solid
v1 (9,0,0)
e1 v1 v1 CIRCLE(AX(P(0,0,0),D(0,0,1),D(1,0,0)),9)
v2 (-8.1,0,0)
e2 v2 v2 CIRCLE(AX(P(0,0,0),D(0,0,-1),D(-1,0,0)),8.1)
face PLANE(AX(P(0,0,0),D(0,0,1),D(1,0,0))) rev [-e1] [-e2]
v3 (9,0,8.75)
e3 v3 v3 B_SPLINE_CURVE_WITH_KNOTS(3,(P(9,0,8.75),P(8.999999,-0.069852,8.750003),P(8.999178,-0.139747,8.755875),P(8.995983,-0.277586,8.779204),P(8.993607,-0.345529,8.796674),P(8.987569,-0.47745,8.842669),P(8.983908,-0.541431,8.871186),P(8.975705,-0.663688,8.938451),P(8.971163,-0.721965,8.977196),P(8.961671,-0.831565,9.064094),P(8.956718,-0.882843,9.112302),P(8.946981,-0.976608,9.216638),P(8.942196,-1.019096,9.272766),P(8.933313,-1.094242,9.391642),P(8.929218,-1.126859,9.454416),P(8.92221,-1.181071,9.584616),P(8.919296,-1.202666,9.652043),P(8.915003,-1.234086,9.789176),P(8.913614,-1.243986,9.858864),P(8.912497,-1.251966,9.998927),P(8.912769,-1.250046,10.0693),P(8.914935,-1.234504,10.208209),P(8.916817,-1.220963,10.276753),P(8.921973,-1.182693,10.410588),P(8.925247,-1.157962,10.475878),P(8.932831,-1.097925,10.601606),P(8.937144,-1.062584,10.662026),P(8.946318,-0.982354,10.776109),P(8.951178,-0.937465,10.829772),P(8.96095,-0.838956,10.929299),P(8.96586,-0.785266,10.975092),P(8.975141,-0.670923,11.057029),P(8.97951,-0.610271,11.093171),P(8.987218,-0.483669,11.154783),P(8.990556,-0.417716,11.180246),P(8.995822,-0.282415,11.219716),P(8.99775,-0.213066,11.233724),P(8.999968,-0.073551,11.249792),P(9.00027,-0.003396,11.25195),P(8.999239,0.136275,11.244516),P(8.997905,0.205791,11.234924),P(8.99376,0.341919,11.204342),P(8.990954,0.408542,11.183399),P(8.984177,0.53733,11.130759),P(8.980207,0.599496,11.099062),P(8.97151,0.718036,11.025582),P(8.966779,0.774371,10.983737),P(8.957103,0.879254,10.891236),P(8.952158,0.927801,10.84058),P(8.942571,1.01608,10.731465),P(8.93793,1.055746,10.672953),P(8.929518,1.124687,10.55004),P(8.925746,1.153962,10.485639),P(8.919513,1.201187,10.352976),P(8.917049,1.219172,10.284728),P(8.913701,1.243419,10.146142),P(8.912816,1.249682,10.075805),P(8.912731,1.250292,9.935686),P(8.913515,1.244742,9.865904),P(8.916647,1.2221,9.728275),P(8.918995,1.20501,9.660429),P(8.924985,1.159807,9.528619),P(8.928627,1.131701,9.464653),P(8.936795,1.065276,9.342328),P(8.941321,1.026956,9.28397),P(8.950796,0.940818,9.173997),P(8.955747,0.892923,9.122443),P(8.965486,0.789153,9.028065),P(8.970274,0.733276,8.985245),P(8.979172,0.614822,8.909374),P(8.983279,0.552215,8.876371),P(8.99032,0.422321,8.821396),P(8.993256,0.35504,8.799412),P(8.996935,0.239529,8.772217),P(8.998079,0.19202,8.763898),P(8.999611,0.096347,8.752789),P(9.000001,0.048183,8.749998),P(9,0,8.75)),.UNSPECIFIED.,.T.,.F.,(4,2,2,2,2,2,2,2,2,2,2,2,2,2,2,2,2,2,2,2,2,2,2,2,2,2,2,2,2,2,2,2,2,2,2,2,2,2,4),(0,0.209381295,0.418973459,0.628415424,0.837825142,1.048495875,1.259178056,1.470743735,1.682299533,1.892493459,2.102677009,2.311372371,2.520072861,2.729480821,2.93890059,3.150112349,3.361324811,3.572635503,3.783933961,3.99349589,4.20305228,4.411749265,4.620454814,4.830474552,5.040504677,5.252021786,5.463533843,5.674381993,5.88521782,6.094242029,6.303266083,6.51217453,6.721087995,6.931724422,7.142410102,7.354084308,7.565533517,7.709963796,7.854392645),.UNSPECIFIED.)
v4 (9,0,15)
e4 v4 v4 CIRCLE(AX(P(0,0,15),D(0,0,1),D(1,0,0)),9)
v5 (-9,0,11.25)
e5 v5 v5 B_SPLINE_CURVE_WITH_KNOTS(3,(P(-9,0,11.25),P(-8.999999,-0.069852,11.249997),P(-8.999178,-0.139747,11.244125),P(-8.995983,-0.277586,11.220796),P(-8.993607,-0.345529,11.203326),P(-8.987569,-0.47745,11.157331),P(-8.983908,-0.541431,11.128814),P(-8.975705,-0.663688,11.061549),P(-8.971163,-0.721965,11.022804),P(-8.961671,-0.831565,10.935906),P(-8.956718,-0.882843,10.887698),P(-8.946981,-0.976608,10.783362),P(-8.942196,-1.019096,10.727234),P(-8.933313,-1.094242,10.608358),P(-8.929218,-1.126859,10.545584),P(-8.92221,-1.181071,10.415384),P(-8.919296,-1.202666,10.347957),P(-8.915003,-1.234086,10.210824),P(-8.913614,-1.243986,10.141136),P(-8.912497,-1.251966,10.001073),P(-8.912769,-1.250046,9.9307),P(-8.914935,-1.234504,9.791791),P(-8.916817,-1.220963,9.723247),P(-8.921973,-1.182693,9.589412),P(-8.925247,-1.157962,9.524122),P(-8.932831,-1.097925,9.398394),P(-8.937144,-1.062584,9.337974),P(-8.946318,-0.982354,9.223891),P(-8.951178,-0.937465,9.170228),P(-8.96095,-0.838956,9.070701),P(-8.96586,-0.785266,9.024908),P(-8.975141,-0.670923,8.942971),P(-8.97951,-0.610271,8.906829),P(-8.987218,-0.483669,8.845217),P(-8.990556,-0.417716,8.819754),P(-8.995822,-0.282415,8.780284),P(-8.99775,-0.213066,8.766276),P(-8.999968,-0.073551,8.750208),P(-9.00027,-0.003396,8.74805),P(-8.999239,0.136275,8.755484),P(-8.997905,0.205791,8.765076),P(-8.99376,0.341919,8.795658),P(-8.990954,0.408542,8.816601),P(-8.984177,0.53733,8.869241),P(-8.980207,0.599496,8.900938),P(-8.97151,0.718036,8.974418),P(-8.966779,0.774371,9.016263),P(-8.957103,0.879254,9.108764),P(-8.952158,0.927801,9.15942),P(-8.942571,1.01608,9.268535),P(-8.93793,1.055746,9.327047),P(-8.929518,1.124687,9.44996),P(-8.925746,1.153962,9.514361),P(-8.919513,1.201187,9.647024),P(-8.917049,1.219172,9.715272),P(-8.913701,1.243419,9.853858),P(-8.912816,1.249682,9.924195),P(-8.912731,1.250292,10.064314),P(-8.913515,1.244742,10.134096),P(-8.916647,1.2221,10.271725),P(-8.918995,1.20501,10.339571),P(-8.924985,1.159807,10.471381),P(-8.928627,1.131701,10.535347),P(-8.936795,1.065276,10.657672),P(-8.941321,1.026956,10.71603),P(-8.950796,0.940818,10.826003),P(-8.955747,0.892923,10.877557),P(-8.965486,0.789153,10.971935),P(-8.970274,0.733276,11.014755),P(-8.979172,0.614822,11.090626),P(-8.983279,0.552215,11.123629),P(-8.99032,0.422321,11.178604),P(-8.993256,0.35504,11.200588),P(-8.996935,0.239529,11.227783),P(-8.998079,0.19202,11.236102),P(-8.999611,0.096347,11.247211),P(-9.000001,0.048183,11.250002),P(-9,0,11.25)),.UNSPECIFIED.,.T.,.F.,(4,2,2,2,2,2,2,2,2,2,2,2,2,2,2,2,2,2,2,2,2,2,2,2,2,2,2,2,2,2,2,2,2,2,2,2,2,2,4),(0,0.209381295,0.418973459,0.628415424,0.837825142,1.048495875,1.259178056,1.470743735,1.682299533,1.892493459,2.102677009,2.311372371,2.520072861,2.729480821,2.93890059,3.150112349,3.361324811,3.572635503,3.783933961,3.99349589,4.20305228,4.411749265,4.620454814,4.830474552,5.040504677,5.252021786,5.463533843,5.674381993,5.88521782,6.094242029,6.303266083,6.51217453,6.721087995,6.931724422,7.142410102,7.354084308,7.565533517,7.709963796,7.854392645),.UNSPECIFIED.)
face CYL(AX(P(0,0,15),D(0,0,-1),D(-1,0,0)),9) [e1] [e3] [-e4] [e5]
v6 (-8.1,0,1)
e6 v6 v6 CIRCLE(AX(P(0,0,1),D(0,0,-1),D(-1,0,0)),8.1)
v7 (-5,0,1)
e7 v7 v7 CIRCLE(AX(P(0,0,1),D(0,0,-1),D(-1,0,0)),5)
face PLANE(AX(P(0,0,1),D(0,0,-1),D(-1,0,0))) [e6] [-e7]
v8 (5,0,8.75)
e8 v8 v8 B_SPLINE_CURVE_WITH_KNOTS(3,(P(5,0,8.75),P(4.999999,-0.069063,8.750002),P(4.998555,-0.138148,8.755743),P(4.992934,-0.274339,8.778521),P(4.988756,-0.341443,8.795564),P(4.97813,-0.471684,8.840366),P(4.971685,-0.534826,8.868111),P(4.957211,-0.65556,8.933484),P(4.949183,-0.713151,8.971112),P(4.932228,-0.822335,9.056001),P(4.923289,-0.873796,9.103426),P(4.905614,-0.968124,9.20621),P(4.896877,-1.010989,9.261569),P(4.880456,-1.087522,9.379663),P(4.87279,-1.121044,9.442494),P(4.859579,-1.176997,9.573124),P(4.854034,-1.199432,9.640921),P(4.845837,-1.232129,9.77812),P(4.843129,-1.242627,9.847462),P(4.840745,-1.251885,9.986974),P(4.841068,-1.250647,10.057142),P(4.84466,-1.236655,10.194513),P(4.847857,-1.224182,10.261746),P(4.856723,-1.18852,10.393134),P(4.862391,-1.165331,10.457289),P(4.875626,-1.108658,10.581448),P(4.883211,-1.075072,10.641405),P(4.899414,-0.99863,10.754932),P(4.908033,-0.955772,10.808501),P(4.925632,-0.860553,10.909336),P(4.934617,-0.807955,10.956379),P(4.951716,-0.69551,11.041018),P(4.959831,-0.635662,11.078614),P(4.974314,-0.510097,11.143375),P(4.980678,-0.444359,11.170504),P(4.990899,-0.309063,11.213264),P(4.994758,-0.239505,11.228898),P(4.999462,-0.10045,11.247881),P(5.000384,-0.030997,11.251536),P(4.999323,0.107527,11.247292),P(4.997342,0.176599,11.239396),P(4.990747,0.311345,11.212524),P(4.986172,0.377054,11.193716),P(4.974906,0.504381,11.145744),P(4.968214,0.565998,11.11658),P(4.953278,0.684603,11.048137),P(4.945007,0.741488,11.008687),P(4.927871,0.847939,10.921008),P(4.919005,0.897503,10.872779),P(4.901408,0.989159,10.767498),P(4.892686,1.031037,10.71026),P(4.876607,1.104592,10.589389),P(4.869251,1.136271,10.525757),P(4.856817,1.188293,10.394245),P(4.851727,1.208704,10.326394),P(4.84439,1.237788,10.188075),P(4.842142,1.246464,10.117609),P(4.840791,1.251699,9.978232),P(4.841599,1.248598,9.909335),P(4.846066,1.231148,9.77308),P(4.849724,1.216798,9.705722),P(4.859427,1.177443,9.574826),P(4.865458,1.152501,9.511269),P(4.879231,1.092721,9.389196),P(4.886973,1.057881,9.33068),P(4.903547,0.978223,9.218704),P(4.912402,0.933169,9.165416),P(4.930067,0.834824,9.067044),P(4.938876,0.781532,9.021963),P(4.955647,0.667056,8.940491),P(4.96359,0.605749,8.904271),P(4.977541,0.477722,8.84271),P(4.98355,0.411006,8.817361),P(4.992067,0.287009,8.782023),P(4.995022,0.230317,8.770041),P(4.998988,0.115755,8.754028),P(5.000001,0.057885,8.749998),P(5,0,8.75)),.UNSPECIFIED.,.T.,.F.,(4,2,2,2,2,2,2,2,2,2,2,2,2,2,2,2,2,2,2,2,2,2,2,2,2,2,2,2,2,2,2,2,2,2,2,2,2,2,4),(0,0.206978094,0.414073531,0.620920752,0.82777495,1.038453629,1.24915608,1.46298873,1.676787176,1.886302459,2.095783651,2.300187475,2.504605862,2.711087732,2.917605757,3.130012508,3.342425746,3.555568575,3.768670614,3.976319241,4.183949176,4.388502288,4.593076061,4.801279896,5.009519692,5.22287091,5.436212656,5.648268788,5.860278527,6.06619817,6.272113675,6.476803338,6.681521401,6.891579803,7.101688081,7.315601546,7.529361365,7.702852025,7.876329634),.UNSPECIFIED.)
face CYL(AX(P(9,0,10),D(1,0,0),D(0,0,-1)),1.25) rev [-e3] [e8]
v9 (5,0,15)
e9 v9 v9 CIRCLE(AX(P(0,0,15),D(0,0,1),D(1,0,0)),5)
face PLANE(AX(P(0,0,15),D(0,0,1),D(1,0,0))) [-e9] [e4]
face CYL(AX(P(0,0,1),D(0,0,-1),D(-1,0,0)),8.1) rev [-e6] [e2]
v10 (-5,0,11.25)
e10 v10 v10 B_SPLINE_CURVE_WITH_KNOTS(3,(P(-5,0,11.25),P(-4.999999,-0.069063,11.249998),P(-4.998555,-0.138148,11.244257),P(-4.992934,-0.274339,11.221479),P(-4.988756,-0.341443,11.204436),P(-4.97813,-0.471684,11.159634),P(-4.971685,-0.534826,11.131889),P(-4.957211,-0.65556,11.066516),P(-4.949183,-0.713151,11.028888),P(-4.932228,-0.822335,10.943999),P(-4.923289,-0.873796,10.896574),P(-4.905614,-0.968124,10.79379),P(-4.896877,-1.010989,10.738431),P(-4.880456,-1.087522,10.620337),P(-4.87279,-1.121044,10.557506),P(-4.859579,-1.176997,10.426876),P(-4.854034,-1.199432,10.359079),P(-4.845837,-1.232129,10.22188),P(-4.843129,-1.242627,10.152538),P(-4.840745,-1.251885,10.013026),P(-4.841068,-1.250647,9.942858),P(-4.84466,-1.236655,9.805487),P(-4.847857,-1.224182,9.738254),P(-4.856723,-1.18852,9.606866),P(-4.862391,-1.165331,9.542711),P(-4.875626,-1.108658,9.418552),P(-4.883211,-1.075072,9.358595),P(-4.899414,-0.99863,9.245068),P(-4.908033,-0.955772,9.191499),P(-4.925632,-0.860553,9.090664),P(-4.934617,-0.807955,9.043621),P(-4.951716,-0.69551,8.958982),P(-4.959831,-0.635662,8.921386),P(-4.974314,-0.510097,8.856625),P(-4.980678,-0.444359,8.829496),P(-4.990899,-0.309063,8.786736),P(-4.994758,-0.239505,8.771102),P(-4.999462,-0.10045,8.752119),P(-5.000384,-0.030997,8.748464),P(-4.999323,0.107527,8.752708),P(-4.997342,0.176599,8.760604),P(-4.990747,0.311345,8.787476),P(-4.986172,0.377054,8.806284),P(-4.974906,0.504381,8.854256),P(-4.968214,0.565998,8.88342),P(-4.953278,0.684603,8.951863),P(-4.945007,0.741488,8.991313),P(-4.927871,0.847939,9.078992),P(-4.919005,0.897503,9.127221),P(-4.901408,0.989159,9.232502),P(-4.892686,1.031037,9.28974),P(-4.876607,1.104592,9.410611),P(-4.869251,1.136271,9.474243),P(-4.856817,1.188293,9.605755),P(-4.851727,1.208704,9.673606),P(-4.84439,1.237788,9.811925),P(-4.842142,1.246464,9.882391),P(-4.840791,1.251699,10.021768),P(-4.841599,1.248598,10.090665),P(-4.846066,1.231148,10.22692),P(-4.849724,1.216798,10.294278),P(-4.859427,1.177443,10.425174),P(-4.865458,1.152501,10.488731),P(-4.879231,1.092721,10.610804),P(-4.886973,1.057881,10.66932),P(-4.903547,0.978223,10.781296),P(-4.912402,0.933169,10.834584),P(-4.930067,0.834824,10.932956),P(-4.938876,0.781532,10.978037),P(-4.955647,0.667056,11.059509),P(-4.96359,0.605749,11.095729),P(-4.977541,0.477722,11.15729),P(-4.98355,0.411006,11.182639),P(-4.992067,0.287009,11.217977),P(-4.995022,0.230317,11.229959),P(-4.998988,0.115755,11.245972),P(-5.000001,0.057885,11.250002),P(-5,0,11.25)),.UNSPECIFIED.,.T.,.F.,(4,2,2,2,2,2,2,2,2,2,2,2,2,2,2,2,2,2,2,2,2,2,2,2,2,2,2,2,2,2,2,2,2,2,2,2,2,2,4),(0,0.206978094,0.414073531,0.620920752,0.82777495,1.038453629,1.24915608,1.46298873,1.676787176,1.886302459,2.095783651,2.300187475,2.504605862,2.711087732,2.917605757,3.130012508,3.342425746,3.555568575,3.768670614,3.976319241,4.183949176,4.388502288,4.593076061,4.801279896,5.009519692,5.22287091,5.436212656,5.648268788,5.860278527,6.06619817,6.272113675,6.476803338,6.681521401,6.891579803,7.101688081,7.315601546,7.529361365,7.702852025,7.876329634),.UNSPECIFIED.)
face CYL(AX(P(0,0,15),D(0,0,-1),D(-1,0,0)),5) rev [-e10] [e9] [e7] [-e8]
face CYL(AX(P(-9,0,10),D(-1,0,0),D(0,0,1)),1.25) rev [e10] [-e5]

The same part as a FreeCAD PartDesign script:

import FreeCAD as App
import Part
import Sketcher

V = App.Vector

doc = App.newDocument("Part")
body = doc.addObject("PartDesign::Body", "Body")

sketch1 = doc.addObject("Sketcher::SketchObject", "Sketch")
body.addObject(sketch1)
sketch1.AttachmentSupport = (doc.XY_Plane, [""])
sketch1.MapMode = "FlatFace"
sketch1.addGeometry(Part.Circle(V(0, 0, 0), V(0, 0, 1), 9), False)
sketch1.addGeometry(Part.Circle(V(0, 0, 0), V(0, 0, 1), 5), False)
sketch1.addConstraint(Sketcher.Constraint("Coincident", 0, 3, -1, 1))
sketch1.addConstraint(Sketcher.Constraint("Coincident", 1, 3, -1, 1))
sketch1.addConstraint(Sketcher.Constraint("Diameter", 0, 18.0))
sketch1.addConstraint(Sketcher.Constraint("Diameter", 1, 10.0))
pad1 = doc.addObject("PartDesign::Pad", "Pad")
body.addObject(pad1)
pad1.Profile = sketch1
pad1.Length = 15

sketch2 = doc.addObject("Sketcher::SketchObject", "Sketch001")
body.addObject(sketch2)
sketch2.AttachmentSupport = (doc.YZ_Plane, [""])
sketch2.MapMode = "FlatFace"
sketch2.AttachmentOffset = App.Placement(V(0, 0, 9), App.Rotation())
sketch2.addGeometry(Part.Circle(V(0, 10, 0), V(0, 0, 1), 1.2), False)
sketch2.addConstraint(Sketcher.Constraint("PointOnObject", 0, 3, -2))
sketch2.addConstraint(Sketcher.Constraint("Diameter", 0, 2.5))
sketch2.addConstraint(Sketcher.Constraint("DistanceY", -1, 1, 0, 3, 10.0))
doc.recompute()
hole = doc.addObject("PartDesign::Hole", "Hole")
body.addObject(hole)
hole.Profile = sketch2
hole.ThreadType = "None"
hole.Diameter = 2.5
hole.DepthType = "Dimension"
hole.Depth = 8.5
hole.DrillPoint = "Angled"
hole.DrillPointAngle = 118

sketch3 = doc.addObject("Sketcher::SketchObject", "Sketch002")
body.addObject(sketch3)
sketch3.AttachmentSupport = (doc.YZ_Plane, [""])
sketch3.MapMode = "FlatFace"
sketch3.AttachmentOffset = App.Placement(V(0, 0, -9), App.Rotation())
sketch3.addGeometry(Part.Circle(V(0, 10, 0), V(0, 0, 1), 1.2), False)
sketch3.addConstraint(Sketcher.Constraint("PointOnObject", 0, 3, -2))
sketch3.addConstraint(Sketcher.Constraint("Diameter", 0, 2.5))
sketch3.addConstraint(Sketcher.Constraint("DistanceY", -1, 1, 0, 3, 10.0))
doc.recompute()
hole2 = doc.addObject("PartDesign::Hole", "Hole001")
body.addObject(hole2)
hole2.Profile = sketch3
hole2.ThreadType = "None"
hole2.Diameter = 2.5
hole2.DepthType = "Dimension"
hole2.Depth = 8.5
hole2.DrillPoint = "Angled"
hole2.DrillPointAngle = 118
hole2.Reversed = True

sketch4 = doc.addObject("Sketcher::SketchObject", "Sketch003")
body.addObject(sketch4)
sketch4.AttachmentSupport = (doc.XY_Plane, [""])
sketch4.MapMode = "FlatFace"
sketch4.addGeometry(Part.Circle(V(0, 0, 0), V(0, 0, 1), 8), False)
sketch4.addConstraint(Sketcher.Constraint("Coincident", 0, 3, -1, 1))
sketch4.addConstraint(Sketcher.Constraint("Diameter", 0, 16.2))
pocket1 = doc.addObject("PartDesign::Pocket", "Pocket")
body.addObject(pocket1)
pocket1.Profile = sketch4
pocket1.Length = 1
pocket1.Reversed = True

doc.recompute()
